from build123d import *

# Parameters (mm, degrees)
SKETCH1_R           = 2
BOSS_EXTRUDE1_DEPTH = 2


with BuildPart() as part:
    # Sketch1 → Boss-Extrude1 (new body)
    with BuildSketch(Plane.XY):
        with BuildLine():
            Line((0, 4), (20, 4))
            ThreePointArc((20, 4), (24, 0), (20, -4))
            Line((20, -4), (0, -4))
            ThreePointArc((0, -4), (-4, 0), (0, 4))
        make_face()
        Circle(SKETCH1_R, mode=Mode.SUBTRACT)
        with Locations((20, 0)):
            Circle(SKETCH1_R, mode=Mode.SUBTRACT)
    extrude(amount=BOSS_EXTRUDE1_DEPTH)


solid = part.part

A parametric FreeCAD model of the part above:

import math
import FreeCAD as App
import Part
import Sketcher

V = App.Vector
Q = App.Units.Quantity

doc = App.newDocument("Part")
body = doc.addObject("PartDesign::Body", "Body")

sketch1 = body.newObject("Sketcher::SketchObject", "Sketch")
sketch1.AttachmentSupport = (doc.getObject("XY_Plane"), [""])
sketch1.MapMode = "FlatFace"
sketch1.addGeometry([
    Part.LineSegment(V(20, 4, 0), V(0, 4, 0)),
    Part.ArcOfCircle(Part.Circle(V(0, 0, 0), V(0, 0, 1), 4), math.radians(90), math.radians(270)),
    Part.LineSegment(V(0, -4, 0), V(20, -4, 0)),
    Part.ArcOfCircle(Part.Circle(V(20, 0, 0), V(0, 0, 1), 4), math.radians(-90), math.radians(90)),
    Part.Circle(V(20, 0, 0), V(0, 0, 1), 2),
    Part.Circle(V(0, 0, 0), V(0, 0, 1), 2),
], False)
sketch1.addConstraint([
    Sketcher.Constraint("Tangent", 0, 2, 1, 1),
    Sketcher.Constraint("Tangent", 1, 2, 2, 1),
    Sketcher.Constraint("Tangent", 2, 2, 3, 1),
    Sketcher.Constraint("Tangent", 3, 2, 0, 1),
    Sketcher.Constraint("Horizontal", 0),
    Sketcher.Constraint("Horizontal", 2),
    Sketcher.Constraint("Coincident", 1, 3, -1, 1),
    Sketcher.Constraint("Coincident", 5, 3, -1, 1),
    Sketcher.Constraint("Coincident", 4, 3, 3, 3),
    Sketcher.Constraint("Equal", 4, 5),
    Sketcher.Constraint("Diameter", 4, Q("4 mm")),
    Sketcher.Constraint("Radius", 1, Q("4 mm")),
    Sketcher.Constraint("DistanceX", 0, 2, 0, 1, Q("20 mm")),
])
pad1 = body.newObject("PartDesign::Pad", "Pad")
pad1.Profile = sketch1
pad1.Length = 2

doc.recompute()
